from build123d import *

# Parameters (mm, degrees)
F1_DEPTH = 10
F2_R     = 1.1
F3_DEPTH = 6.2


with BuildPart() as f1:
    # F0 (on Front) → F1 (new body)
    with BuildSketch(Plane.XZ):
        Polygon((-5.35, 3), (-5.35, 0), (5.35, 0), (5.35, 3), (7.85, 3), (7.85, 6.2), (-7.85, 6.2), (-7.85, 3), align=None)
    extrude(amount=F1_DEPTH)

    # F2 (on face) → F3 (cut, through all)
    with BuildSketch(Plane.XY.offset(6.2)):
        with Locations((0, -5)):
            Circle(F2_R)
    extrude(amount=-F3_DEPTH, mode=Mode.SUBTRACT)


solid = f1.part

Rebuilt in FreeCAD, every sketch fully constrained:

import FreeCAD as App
import Part
import Sketcher
from FreeCAD import Vector
Q = App.Units.Quantity

doc = App.newDocument("Part")
body = doc.addObject("PartDesign::Body", "Body")

sketch1 = body.newObject("Sketcher::SketchObject", "Sketch")
sketch1.AttachmentSupport = (doc.getObject("XZ_Plane"), [""])
sketch1.MapMode = "FlatFace"
sketch1.addGeometry(Part.LineSegment(Vector(-5.3, 3, 0), Vector(-5.3, 0, 0)), False)
sketch1.addGeometry(Part.LineSegment(Vector(-5.3, 0, 0), Vector(5.3, 0, 0)), False)
sketch1.addGeometry(Part.LineSegment(Vector(5.3, 0, 0), Vector(5.3, 3, 0)), False)
sketch1.addGeometry(Part.LineSegment(Vector(5.3, 3, 0), Vector(7.8, 3, 0)), False)
sketch1.addGeometry(Part.LineSegment(Vector(7.8, 3, 0), Vector(7.8, 6.2, 0)), False)
sketch1.addGeometry(Part.LineSegment(Vector(7.8, 6.2, 0), Vector(-7.8, 6.2, 0)), False)
sketch1.addGeometry(Part.LineSegment(Vector(-7.8, 6.2, 0), Vector(-7.8, 3, 0)), False)
sketch1.addGeometry(Part.LineSegment(Vector(-7.8, 3, 0), Vector(-5.3, 3, 0)), False)
sketch1.addConstraint(Sketcher.Constraint("Coincident", 0, 2, 1, 1))
sketch1.addConstraint(Sketcher.Constraint("Coincident", 1, 2, 2, 1))
sketch1.addConstraint(Sketcher.Constraint("Coincident", 2, 2, 3, 1))
sketch1.addConstraint(Sketcher.Constraint("Coincident", 3, 2, 4, 1))
sketch1.addConstraint(Sketcher.Constraint("Coincident", 4, 2, 5, 1))
sketch1.addConstraint(Sketcher.Constraint("Coincident", 5, 2, 6, 1))
sketch1.addConstraint(Sketcher.Constraint("Coincident", 6, 2, 7, 1))
sketch1.addConstraint(Sketcher.Constraint("Coincident", 7, 2, 0, 1))
sketch1.addConstraint(Sketcher.Constraint("Vertical", 0))
sketch1.addConstraint(Sketcher.Constraint("Horizontal", 1))
sketch1.addConstraint(Sketcher.Constraint("Vertical", 2))
sketch1.addConstraint(Sketcher.Constraint("Horizontal", 3))
sketch1.addConstraint(Sketcher.Constraint("Vertical", 4))
sketch1.addConstraint(Sketcher.Constraint("Horizontal", 5))
sketch1.addConstraint(Sketcher.Constraint("Vertical", 6))
sketch1.addConstraint(Sketcher.Constraint("Horizontal", 7))
sketch1.addConstraint(Sketcher.Constraint("Symmetric", 0, 2, 1, 2, -1, 1))
sketch1.addConstraint(Sketcher.Constraint("Symmetric", 3, 2, 6, 2, -2))
sketch1.addConstraint(Sketcher.Constraint("DistanceY", 0, 2, 0, 1, Q("3 mm")))
sketch1.addConstraint(Sketcher.Constraint("DistanceX", 1, 1, 1, 2, Q("10.7 mm")))
sketch1.addConstraint(Sketcher.Constraint("DistanceX", 3, 1, 3, 2, Q("2.5 mm")))
sketch1.addConstraint(Sketcher.Constraint("DistanceY", 4, 1, 4, 2, Q("3.2 mm")))
pad1 = body.newObject("PartDesign::Pad", "Pad")
pad1.Profile = sketch1
pad1.Length = 10

sketch2 = body.newObject("Sketcher::SketchObject", "Sketch001")
sketch2.AttachmentSupport = (doc.getObject("XY_Plane"), [""])
sketch2.MapMode = "FlatFace"
sketch2.AttachmentOffset = App.Placement(Vector(0, 0, 6.2), App.Rotation())
sketch2.addGeometry(Part.Circle(Vector(0, -5, 0), Vector(0, 0, 1), 1.1), False)
sketch2.addConstraint(Sketcher.Constraint("PointOnObject", 0, 3, -2))
sketch2.addConstraint(Sketcher.Constraint("Diameter", 0, Q("2.2 mm")))
sketch2.addConstraint(Sketcher.Constraint("DistanceY", 0, 3, -1, 1, Q("5 mm")))
pocket1 = body.newObject("PartDesign::Pocket", "Pocket")
pocket1.Profile = sketch2
pocket1.Type = "ThroughAll"

doc.recompute()
